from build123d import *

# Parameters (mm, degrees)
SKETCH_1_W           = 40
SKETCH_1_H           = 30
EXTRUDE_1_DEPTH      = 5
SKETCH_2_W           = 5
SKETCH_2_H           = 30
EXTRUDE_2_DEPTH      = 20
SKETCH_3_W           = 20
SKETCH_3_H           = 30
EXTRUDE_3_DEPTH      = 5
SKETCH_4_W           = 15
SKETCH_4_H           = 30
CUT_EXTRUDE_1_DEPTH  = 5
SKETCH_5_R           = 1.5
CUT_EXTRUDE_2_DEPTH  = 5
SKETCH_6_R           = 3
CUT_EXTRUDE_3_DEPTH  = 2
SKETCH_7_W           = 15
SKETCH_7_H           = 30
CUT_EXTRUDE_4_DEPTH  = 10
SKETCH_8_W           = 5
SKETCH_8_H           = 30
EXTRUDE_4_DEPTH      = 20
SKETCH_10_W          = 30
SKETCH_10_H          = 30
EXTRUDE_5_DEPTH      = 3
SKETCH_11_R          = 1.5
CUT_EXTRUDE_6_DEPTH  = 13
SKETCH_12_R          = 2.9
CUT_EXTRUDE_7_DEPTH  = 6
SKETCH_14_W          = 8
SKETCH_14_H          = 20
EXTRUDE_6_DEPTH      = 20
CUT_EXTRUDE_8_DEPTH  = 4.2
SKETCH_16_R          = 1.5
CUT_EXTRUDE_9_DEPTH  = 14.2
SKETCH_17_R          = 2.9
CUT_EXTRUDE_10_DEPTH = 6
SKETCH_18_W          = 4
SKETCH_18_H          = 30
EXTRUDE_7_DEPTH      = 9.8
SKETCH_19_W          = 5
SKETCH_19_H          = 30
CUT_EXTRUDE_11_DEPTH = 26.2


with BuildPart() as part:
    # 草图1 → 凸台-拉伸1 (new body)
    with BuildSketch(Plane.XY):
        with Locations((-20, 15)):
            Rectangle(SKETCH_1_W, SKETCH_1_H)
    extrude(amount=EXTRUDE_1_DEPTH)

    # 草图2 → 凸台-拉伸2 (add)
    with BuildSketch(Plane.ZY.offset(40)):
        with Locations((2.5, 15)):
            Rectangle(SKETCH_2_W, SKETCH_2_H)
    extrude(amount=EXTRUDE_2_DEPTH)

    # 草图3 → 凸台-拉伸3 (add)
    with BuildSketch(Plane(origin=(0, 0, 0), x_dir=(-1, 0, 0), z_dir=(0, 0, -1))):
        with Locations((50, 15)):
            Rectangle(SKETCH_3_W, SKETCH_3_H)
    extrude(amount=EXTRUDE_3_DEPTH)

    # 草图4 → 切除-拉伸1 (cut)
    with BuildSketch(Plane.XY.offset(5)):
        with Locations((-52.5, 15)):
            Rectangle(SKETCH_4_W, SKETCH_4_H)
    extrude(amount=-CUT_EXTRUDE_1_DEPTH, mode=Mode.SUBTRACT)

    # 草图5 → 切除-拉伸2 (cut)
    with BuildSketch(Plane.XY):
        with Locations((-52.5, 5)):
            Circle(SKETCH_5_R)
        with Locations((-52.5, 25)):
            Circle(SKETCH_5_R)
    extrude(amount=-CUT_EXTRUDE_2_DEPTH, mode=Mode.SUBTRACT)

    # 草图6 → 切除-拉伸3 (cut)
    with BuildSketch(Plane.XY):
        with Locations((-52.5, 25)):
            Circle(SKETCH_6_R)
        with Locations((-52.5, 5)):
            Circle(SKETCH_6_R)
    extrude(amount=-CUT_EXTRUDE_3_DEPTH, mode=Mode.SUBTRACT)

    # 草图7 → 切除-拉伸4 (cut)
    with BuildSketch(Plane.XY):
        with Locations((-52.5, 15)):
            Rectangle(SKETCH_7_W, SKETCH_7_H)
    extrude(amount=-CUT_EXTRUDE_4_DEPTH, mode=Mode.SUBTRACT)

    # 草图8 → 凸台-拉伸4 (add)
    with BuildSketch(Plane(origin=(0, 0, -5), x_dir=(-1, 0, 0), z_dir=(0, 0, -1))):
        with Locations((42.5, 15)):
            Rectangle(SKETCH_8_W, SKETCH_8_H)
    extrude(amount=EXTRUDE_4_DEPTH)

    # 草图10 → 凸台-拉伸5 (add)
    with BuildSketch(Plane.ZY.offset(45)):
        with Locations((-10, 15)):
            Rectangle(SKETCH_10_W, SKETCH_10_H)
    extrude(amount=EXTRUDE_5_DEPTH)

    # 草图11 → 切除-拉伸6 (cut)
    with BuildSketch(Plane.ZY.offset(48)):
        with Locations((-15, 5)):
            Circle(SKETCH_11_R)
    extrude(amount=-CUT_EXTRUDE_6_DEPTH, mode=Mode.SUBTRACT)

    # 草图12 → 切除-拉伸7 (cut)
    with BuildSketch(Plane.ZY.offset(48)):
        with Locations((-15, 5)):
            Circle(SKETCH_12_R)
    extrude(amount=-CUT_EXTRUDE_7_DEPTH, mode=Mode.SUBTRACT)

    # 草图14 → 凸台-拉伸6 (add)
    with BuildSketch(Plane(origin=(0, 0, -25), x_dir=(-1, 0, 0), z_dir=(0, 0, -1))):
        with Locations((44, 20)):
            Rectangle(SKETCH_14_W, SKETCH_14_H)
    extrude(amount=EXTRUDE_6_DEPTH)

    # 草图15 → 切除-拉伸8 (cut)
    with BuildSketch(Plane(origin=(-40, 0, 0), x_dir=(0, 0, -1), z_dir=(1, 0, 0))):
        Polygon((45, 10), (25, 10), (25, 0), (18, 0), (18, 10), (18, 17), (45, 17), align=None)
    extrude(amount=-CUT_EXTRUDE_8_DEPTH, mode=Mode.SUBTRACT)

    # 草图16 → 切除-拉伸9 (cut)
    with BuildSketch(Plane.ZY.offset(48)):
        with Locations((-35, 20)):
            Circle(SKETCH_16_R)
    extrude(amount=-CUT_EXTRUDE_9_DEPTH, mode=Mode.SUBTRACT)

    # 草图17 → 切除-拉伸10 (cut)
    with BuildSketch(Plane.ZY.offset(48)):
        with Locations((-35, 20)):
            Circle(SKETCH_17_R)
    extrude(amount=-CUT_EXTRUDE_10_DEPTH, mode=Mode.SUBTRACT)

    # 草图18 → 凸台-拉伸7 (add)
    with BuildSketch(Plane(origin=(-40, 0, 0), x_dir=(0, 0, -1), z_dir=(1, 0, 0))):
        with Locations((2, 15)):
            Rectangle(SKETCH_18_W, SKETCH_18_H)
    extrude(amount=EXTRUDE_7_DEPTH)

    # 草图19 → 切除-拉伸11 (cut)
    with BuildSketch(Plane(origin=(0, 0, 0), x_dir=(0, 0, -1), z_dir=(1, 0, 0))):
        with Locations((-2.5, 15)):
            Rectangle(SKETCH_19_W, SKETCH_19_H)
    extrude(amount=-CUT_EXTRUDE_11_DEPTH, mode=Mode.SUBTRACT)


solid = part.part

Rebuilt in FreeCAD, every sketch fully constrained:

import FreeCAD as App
import Part
import Sketcher

V = App.Vector
Q = App.Units.Quantity

doc = App.newDocument("Part")
body = doc.addObject("PartDesign::Body", "Body")

# Sketch on XY plane
sketch1 = doc.addObject("Sketcher::SketchObject", "Sketch")
body.addObject(sketch1)
sketch1.AttachmentSupport = (doc.XY_Plane, [""])
sketch1.MapMode = "FlatFace"
sketch1.addGeometry([
    Part.LineSegment(V(-40, 30, 0), V(-40, 0, 0)),
    Part.LineSegment(V(-40, 0, 0), V(0, 0, 0)),
    Part.LineSegment(V(0, 0, 0), V(0, 30, 0)),
    Part.LineSegment(V(0, 30, 0), V(-40, 30, 0)),
], False)
sketch1.addConstraint([
    Sketcher.Constraint("Coincident", 0, 2, 1, 1),
    Sketcher.Constraint("Coincident", 1, 2, 2, 1),
    Sketcher.Constraint("Coincident", 2, 2, 3, 1),
    Sketcher.Constraint("Coincident", 3, 2, 0, 1),
    Sketcher.Constraint("Vertical", 0),
    Sketcher.Constraint("Horizontal", 1),
    Sketcher.Constraint("Vertical", 2),
    Sketcher.Constraint("Horizontal", 3),
    Sketcher.Constraint("Coincident", 1, 2, -1, 1),
    Sketcher.Constraint("DistanceX", 1, 1, 1, 2, Q("40 mm")),
    Sketcher.Constraint("DistanceY", 0, 2, 0, 1, Q("30 mm")),
])
pad1 = doc.addObject("PartDesign::Pad", "Pad")
body.addObject(pad1)
pad1.Profile = sketch1
pad1.Length = 5

# Sketch on YZ plane
sketch2 = doc.addObject("Sketcher::SketchObject", "Sketch001")
body.addObject(sketch2)
sketch2.AttachmentSupport = (doc.YZ_Plane, [""])
sketch2.MapMode = "FlatFace"
sketch2.AttachmentOffset = App.Placement(V(0, 0, -40), App.Rotation())
sketch2.addGeometry([
    Part.LineSegment(V(30, 0, 0), V(0, 0, 0)),
    Part.LineSegment(V(0, 0, 0), V(0, 5, 0)),
    Part.LineSegment(V(0, 5, 0), V(30, 5, 0)),
    Part.LineSegment(V(30, 5, 0), V(30, 0, 0)),
], False)
sketch2.addConstraint([
    Sketcher.Constraint("Coincident", 0, 2, 1, 1),
    Sketcher.Constraint("Coincident", 1, 2, 2, 1),
    Sketcher.Constraint("Coincident", 2, 2, 3, 1),
    Sketcher.Constraint("Coincident", 3, 2, 0, 1),
    Sketcher.Constraint("Horizontal", 0),
    Sketcher.Constraint("Vertical", 1),
    Sketcher.Constraint("Horizontal", 2),
    Sketcher.Constraint("Vertical", 3),
    Sketcher.Constraint("Coincident", 0, 2, -1, 1),
    Sketcher.Constraint("DistanceX", 0, 2, 0, 1, Q("30 mm")),
    Sketcher.Constraint("DistanceY", 1, 1, 1, 2, Q("5 mm")),
])
pad2 = doc.addObject("PartDesign::Pad", "Pad001")
body.addObject(pad2)
pad2.Profile = sketch2
pad2.Length = 20
pad2.Reversed = True

# Sketch on XY plane
sketch3 = doc.addObject("Sketcher::SketchObject", "Sketch002")
body.addObject(sketch3)
sketch3.AttachmentSupport = (doc.XY_Plane, [""])
sketch3.MapMode = "FlatFace"
sketch3.addGeometry([
    Part.LineSegment(V(-40, 30, 0), V(-40, 0, 0)),
    Part.LineSegment(V(-40, 0, 0), V(-60, 0, 0)),
    Part.LineSegment(V(-60, 0, 0), V(-60, 30, 0)),
    Part.LineSegment(V(-60, 30, 0), V(-40, 30, 0)),
], False)
sketch3.addConstraint([
    Sketcher.Constraint("Coincident", 0, 2, 1, 1),
    Sketcher.Constraint("Coincident", 1, 2, 2, 1),
    Sketcher.Constraint("Coincident", 2, 2, 3, 1),
    Sketcher.Constraint("Coincident", 3, 2, 0, 1),
    Sketcher.Constraint("Vertical", 0),
    Sketcher.Constraint("Horizontal", 1),
    Sketcher.Constraint("Vertical", 2),
    Sketcher.Constraint("Horizontal", 3),
    Sketcher.Constraint("PointOnObject", 0, 2, -1),
    Sketcher.Constraint("DistanceX", 1, 2, 1, 1, Q("20 mm")),
    Sketcher.Constraint("DistanceY", 0, 2, 0, 1, Q("30 mm")),
    Sketcher.Constraint("DistanceX", 0, 2, -1, 1, Q("40 mm")),
])
pad3 = doc.addObject("PartDesign::Pad", "Pad002")
body.addObject(pad3)
pad3.Profile = sketch3
pad3.Length = 5
pad3.Reversed = True

# Sketch on XY plane
sketch4 = doc.addObject("Sketcher::SketchObject", "Sketch003")
body.addObject(sketch4)
sketch4.AttachmentSupport = (doc.XY_Plane, [""])
sketch4.MapMode = "FlatFace"
sketch4.AttachmentOffset = App.Placement(V(0, 0, 5), App.Rotation())
sketch4.addGeometry([
    Part.LineSegment(V(-60, 30, 0), V(-60, 0, 0)),
    Part.LineSegment(V(-60, 0, 0), V(-45, 0, 0)),
    Part.LineSegment(V(-45, 0, 0), V(-45, 30, 0)),
    Part.LineSegment(V(-45, 30, 0), V(-60, 30, 0)),
], False)
sketch4.addConstraint([
    Sketcher.Constraint("Coincident", 0, 2, 1, 1),
    Sketcher.Constraint("Coincident", 1, 2, 2, 1),
    Sketcher.Constraint("Coincident", 2, 2, 3, 1),
    Sketcher.Constraint("Coincident", 3, 2, 0, 1),
    Sketcher.Constraint("Vertical", 0),
    Sketcher.Constraint("Horizontal", 1),
    Sketcher.Constraint("Vertical", 2),
    Sketcher.Constraint("Horizontal", 3),
    Sketcher.Constraint("PointOnObject", 0, 2, -1),
    Sketcher.Constraint("DistanceX", 1, 1, 1, 2, Q("15 mm")),
    Sketcher.Constraint("DistanceY", 0, 2, 0, 1, Q("30 mm")),
    Sketcher.Constraint("DistanceX", 0, 2, -1, 1, Q("60 mm")),
])
pocket1 = doc.addObject("PartDesign::Pocket", "Pocket")
body.addObject(pocket1)
pocket1.Profile = sketch4
pocket1.Length = 5

# Sketch on XY plane
sketch5 = doc.addObject("Sketcher::SketchObject", "Sketch004")
body.addObject(sketch5)
sketch5.AttachmentSupport = (doc.XY_Plane, [""])
sketch5.MapMode = "FlatFace"
sketch5.addGeometry([
    Part.Circle(V(-52.5, 5, 0), V(0, 0, 1), 1.5),
    Part.Circle(V(-52.5, 25, 0), V(0, 0, 1), 1.5),
], False)
sketch5.addConstraint([
    Sketcher.Constraint("Equal", 0, 1),
    Sketcher.Constraint("Vertical", 0, 3, 1, 3),
    Sketcher.Constraint("Diameter", 0, Q("3 mm")),
    Sketcher.Constraint("DistanceY", -1, 1, 0, 3, Q("5 mm")),
    Sketcher.Constraint("DistanceY", -1, 1, 1, 3, Q("25 mm")),
    Sketcher.Constraint("DistanceX", 0, 3, -1, 1, Q("52.5 mm")),
])
pocket2 = doc.addObject("PartDesign::Pocket", "Pocket001")
body.addObject(pocket2)
pocket2.Profile = sketch5
pocket2.Length = 5

# Sketch on XY plane
sketch6 = doc.addObject("Sketcher::SketchObject", "Sketch005")
body.addObject(sketch6)
sketch6.AttachmentSupport = (doc.XY_Plane, [""])
sketch6.MapMode = "FlatFace"
sketch6.addGeometry([
    Part.Circle(V(-52.5, 25, 0), V(0, 0, 1), 3),
    Part.Circle(V(-52.5, 5, 0), V(0, 0, 1), 3),
], False)
sketch6.addConstraint([
    Sketcher.Constraint("Equal", 0, 1),
    Sketcher.Constraint("Vertical", 0, 3, 1, 3),
    Sketcher.Constraint("Diameter", 0, Q("6 mm")),
    Sketcher.Constraint("DistanceY", -1, 1, 0, 3, Q("25 mm")),
    Sketcher.Constraint("DistanceY", -1, 1, 1, 3, Q("5 mm")),
    Sketcher.Constraint("DistanceX", 0, 3, -1, 1, Q("52.5 mm")),
])
pocket3 = doc.addObject("PartDesign::Pocket", "Pocket002")
body.addObject(pocket3)
pocket3.Profile = sketch6
pocket3.Length = 2

# Sketch on XY plane
sketch7 = doc.addObject("Sketcher::SketchObject", "Sketch006")
body.addObject(sketch7)
sketch7.AttachmentSupport = (doc.XY_Plane, [""])
sketch7.MapMode = "FlatFace"
sketch7.addGeometry([
    Part.LineSegment(V(-60, 30, 0), V(-60, 0, 0)),
    Part.LineSegment(V(-60, 0, 0), V(-45, 0, 0)),
    Part.LineSegment(V(-45, 0, 0), V(-45, 30, 0)),
    Part.LineSegment(V(-45, 30, 0), V(-60, 30, 0)),
], False)
sketch7.addConstraint([
    Sketcher.Constraint("Coincident", 0, 2, 1, 1),
    Sketcher.Constraint("Coincident", 1, 2, 2, 1),
    Sketcher.Constraint("Coincident", 2, 2, 3, 1),
    Sketcher.Constraint("Coincident", 3, 2, 0, 1),
    Sketcher.Constraint("Vertical", 0),
    Sketcher.Constraint("Horizontal", 1),
    Sketcher.Constraint("Vertical", 2),
    Sketcher.Constraint("Horizontal", 3),
    Sketcher.Constraint("PointOnObject", 0, 2, -1),
    Sketcher.Constraint("DistanceX", 1, 1, 1, 2, Q("15 mm")),
    Sketcher.Constraint("DistanceY", 0, 2, 0, 1, Q("30 mm")),
    Sketcher.Constraint("DistanceX", 0, 2, -1, 1, Q("60 mm")),
])
pocket4 = doc.addObject("PartDesign::Pocket", "Pocket003")
body.addObject(pocket4)
pocket4.Profile = sketch7
pocket4.Length = 10

# Sketch on XY plane
sketch8 = doc.addObject("Sketcher::SketchObject", "Sketch007")
body.addObject(sketch8)
sketch8.AttachmentSupport = (doc.XY_Plane, [""])
sketch8.MapMode = "FlatFace"
sketch8.AttachmentOffset = App.Placement(V(0, 0, -5), App.Rotation())
sketch8.addGeometry([
    Part.LineSegment(V(-40, 30, 0), V(-40, 0, 0)),
    Part.LineSegment(V(-40, 0, 0), V(-45, 0, 0)),
    Part.LineSegment(V(-45, 0, 0), V(-45, 30, 0)),
    Part.LineSegment(V(-45, 30, 0), V(-40, 30, 0)),
], False)
sketch8.addConstraint([
    Sketcher.Constraint("Coincident", 0, 2, 1, 1),
    Sketcher.Constraint("Coincident", 1, 2, 2, 1),
    Sketcher.Constraint("Coincident", 2, 2, 3, 1),
    Sketcher.Constraint("Coincident", 3, 2, 0, 1),
    Sketcher.Constraint("Vertical", 0),
    Sketcher.Constraint("Horizontal", 1),
    Sketcher.Constraint("Vertical", 2),
    Sketcher.Constraint("Horizontal", 3),
    Sketcher.Constraint("PointOnObject", 0, 2, -1),
    Sketcher.Constraint("DistanceX", 1, 2, 1, 1, Q("5 mm")),
    Sketcher.Constraint("DistanceY", 0, 2, 0, 1, Q("30 mm")),
    Sketcher.Constraint("DistanceX", 0, 2, -1, 1, Q("40 mm")),
])
pad4 = doc.addObject("PartDesign::Pad", "Pad003")
body.addObject(pad4)
pad4.Profile = sketch8
pad4.Length = 20
pad4.Reversed = True

# Sketch on YZ plane
sketch9 = doc.addObject("Sketcher::SketchObject", "Sketch008")
body.addObject(sketch9)
sketch9.AttachmentSupport = (doc.YZ_Plane, [""])
sketch9.MapMode = "FlatFace"
sketch9.AttachmentOffset = App.Placement(V(0, 0, -45), App.Rotation())
sketch9.addGeometry([
    Part.LineSegment(V(30, -25, 0), V(0, -25, 0)),
    Part.LineSegment(V(0, -25, 0), V(0, 5, 0)),
    Part.LineSegment(V(0, 5, 0), V(30, 5, 0)),
    Part.LineSegment(V(30, 5, 0), V(30, -25, 0)),
], False)
sketch9.addConstraint([
    Sketcher.Constraint("Coincident", 0, 2, 1, 1),
    Sketcher.Constraint("Coincident", 1, 2, 2, 1),
    Sketcher.Constraint("Coincident", 2, 2, 3, 1),
    Sketcher.Constraint("Coincident", 3, 2, 0, 1),
    Sketcher.Constraint("Horizontal", 0),
    Sketcher.Constraint("Vertical", 1),
    Sketcher.Constraint("Horizontal", 2),
    Sketcher.Constraint("Vertical", 3),
    Sketcher.Constraint("PointOnObject", 0, 2, -2),
    Sketcher.Constraint("Equal", 2, 1),
    Sketcher.Constraint("DistanceX", 0, 2, 0, 1, Q("30 mm")),
    Sketcher.Constraint("DistanceY", 0, 2, -1, 1, Q("25 mm")),
])
pad5 = doc.addObject("PartDesign::Pad", "Pad004")
body.addObject(pad5)
pad5.Profile = sketch9
pad5.Length = 3
pad5.Reversed = True

# Sketch on YZ plane
sketch10 = doc.addObject("Sketcher::SketchObject", "Sketch009")
body.addObject(sketch10)
sketch10.AttachmentSupport = (doc.YZ_Plane, [""])
sketch10.MapMode = "FlatFace"
sketch10.AttachmentOffset = App.Placement(V(0, 0, -48), App.Rotation())
sketch10.addGeometry(Part.Circle(V(5, -15, 0), V(0, 0, 1), 1.5), False)
sketch10.addConstraint([
    Sketcher.Constraint("Diameter", 0, Q("3 mm")),
    Sketcher.Constraint("DistanceX", -1, 1, 0, 3, Q("5 mm")),
    Sketcher.Constraint("DistanceY", 0, 3, -1, 1, Q("15 mm")),
])
pocket5 = doc.addObject("PartDesign::Pocket", "Pocket004")
body.addObject(pocket5)
pocket5.Profile = sketch10
pocket5.Length = 13
pocket5.Reversed = True

# Sketch on YZ plane
sketch11 = doc.addObject("Sketcher::SketchObject", "Sketch010")
body.addObject(sketch11)
sketch11.AttachmentSupport = (doc.YZ_Plane, [""])
sketch11.MapMode = "FlatFace"
sketch11.AttachmentOffset = App.Placement(V(0, 0, -48), App.Rotation())
sketch11.addGeometry(Part.Circle(V(5, -15, 0), V(0, 0, 1), 2.9), False)
sketch11.addConstraint([
    Sketcher.Constraint("Diameter", 0, Q("5.8 mm")),
    Sketcher.Constraint("DistanceX", -1, 1, 0, 3, Q("5 mm")),
    Sketcher.Constraint("DistanceY", 0, 3, -1, 1, Q("15 mm")),
])
pocket6 = doc.addObject("PartDesign::Pocket", "Pocket005")
body.addObject(pocket6)
pocket6.Profile = sketch11
pocket6.Length = 6
pocket6.Reversed = True

# Sketch on XY plane
sketch12 = doc.addObject("Sketcher::SketchObject", "Sketch011")
body.addObject(sketch12)
sketch12.AttachmentSupport = (doc.XY_Plane, [""])
sketch12.MapMode = "FlatFace"
sketch12.AttachmentOffset = App.Placement(V(0, 0, -25), App.Rotation())
sketch12.addGeometry([
    Part.LineSegment(V(-40, 30, 0), V(-40, 10, 0)),
    Part.LineSegment(V(-40, 10, 0), V(-48, 10, 0)),
    Part.LineSegment(V(-48, 10, 0), V(-48, 30, 0)),
    Part.LineSegment(V(-48, 30, 0), V(-40, 30, 0)),
], False)
sketch12.addConstraint([
    Sketcher.Constraint("Coincident", 0, 2, 1, 1),
    Sketcher.Constraint("Coincident", 1, 2, 2, 1),
    Sketcher.Constraint("Coincident", 2, 2, 3, 1),
    Sketcher.Constraint("Coincident", 3, 2, 0, 1),
    Sketcher.Constraint("Vertical", 0),
    Sketcher.Constraint("Horizontal", 1),
    Sketcher.Constraint("Vertical", 2),
    Sketcher.Constraint("Horizontal", 3),
    Sketcher.Constraint("DistanceX", 1, 2, 1, 1, Q("8 mm")),
    Sketcher.Constraint("DistanceY", 0, 2, 0, 1, Q("20 mm")),
    Sketcher.Constraint("DistanceX", 0, 2, -1, 1, Q("40 mm")),
    Sketcher.Constraint("DistanceY", -1, 1, 0, 2, Q("10 mm")),
])
pad6 = doc.addObject("PartDesign::Pad", "Pad005")
body.addObject(pad6)
pad6.Profile = sketch12
pad6.Length = 20
pad6.Reversed = True

# Sketch on YZ plane
sketch13 = doc.addObject("Sketcher::SketchObject", "Sketch012")
body.addObject(sketch13)
sketch13.AttachmentSupport = (doc.YZ_Plane, [""])
sketch13.MapMode = "FlatFace"
sketch13.AttachmentOffset = App.Placement(V(0, 0, -40), App.Rotation())
sketch13.addGeometry([
    Part.LineSegment(V(10, -25, 0), V(10, -45, 0)),  # 0
    Part.LineSegment(V(10, -45, 0), V(17, -45, 0)),  # 1
    Part.LineSegment(V(17, -45, 0), V(17, -18, 0)),  # 2
    Part.LineSegment(V(17, -18, 0), V(0, -18, 0)),  # 3
    Part.LineSegment(V(0, -18, 0), V(0, -25, 0)),  # 4
    Part.LineSegment(V(0, -25, 0), V(10, -25, 0)),  # 5
], False)
sketch13.addConstraint([
    Sketcher.Constraint("Coincident", 0, 2, 1, 1),
    Sketcher.Constraint("Coincident", 1, 2, 2, 1),
    Sketcher.Constraint("Coincident", 2, 2, 3, 1),
    Sketcher.Constraint("Coincident", 3, 2, 4, 1),
    Sketcher.Constraint("Coincident", 4, 2, 5, 1),
    Sketcher.Constraint("Coincident", 5, 2, 0, 1),
    Sketcher.Constraint("Vertical", 0),
    Sketcher.Constraint("Horizontal", 1),
    Sketcher.Constraint("Vertical", 2),
    Sketcher.Constraint("Horizontal", 3),
    Sketcher.Constraint("Vertical", 4),
    Sketcher.Constraint("Horizontal", 5),
    Sketcher.Constraint("PointOnObject", 3, 2, -2),
    Sketcher.Constraint("Equal", 1, 4),
    Sketcher.Constraint("DistanceX", 1, 1, 1, 2, Q("7 mm")),
    Sketcher.Constraint("DistanceX", 3, 2, 3, 1, Q("17 mm")),
    Sketcher.Constraint("DistanceY", 0, 2, 0, 1, Q("20 mm")),
    Sketcher.Constraint("DistanceY", 0, 2, -1, 1, Q("45 mm")),
])
pocket7 = doc.addObject("PartDesign::Pocket", "Pocket006")
body.addObject(pocket7)
pocket7.Profile = sketch13
pocket7.Length = 4.2

# Sketch on YZ plane
sketch14 = doc.addObject("Sketcher::SketchObject", "Sketch013")
body.addObject(sketch14)
sketch14.AttachmentSupport = (doc.YZ_Plane, [""])
sketch14.MapMode = "FlatFace"
sketch14.AttachmentOffset = App.Placement(V(0, 0, -48), App.Rotation())
sketch14.addGeometry(Part.Circle(V(20, -35, 0), V(0, 0, 1), 1.5), False)
sketch14.addConstraint([
    Sketcher.Constraint("Diameter", 0, Q("3 mm")),
    Sketcher.Constraint("DistanceX", -1, 1, 0, 3, Q("20 mm")),
    Sketcher.Constraint("DistanceY", 0, 3, -1, 1, Q("35 mm")),
])
pocket8 = doc.addObject("PartDesign::Pocket", "Pocket007")
body.addObject(pocket8)
pocket8.Profile = sketch14
pocket8.Length = 14.2
pocket8.Reversed = True

# Sketch on YZ plane
sketch15 = doc.addObject("Sketcher::SketchObject", "Sketch014")
body.addObject(sketch15)
sketch15.AttachmentSupport = (doc.YZ_Plane, [""])
sketch15.MapMode = "FlatFace"
sketch15.AttachmentOffset = App.Placement(V(0, 0, -48), App.Rotation())
sketch15.addGeometry(Part.Circle(V(20, -35, 0), V(0, 0, 1), 2.9), False)
sketch15.addConstraint([
    Sketcher.Constraint("Diameter", 0, Q("5.8 mm")),
    Sketcher.Constraint("DistanceX", -1, 1, 0, 3, Q("20 mm")),
    Sketcher.Constraint("DistanceY", 0, 3, -1, 1, Q("35 mm")),
])
pocket9 = doc.addObject("PartDesign::Pocket", "Pocket008")
body.addObject(pocket9)
pocket9.Profile = sketch15
pocket9.Length = 6
pocket9.Reversed = True

# Sketch on YZ plane
sketch16 = doc.addObject("Sketcher::SketchObject", "Sketch015")
body.addObject(sketch16)
sketch16.AttachmentSupport = (doc.YZ_Plane, [""])
sketch16.MapMode = "FlatFace"
sketch16.AttachmentOffset = App.Placement(V(0, 0, -40), App.Rotation())
sketch16.addGeometry([
    Part.LineSegment(V(30, 0, 0), V(0, 0, 0)),
    Part.LineSegment(V(0, 0, 0), V(0, -4, 0)),
    Part.LineSegment(V(0, -4, 0), V(30, -4, 0)),
    Part.LineSegment(V(30, -4, 0), V(30, 0, 0)),
], False)
sketch16.addConstraint([
    Sketcher.Constraint("Coincident", 0, 2, 1, 1),
    Sketcher.Constraint("Coincident", 1, 2, 2, 1),
    Sketcher.Constraint("Coincident", 2, 2, 3, 1),
    Sketcher.Constraint("Coincident", 3, 2, 0, 1),
    Sketcher.Constraint("Horizontal", 0),
    Sketcher.Constraint("Vertical", 1),
    Sketcher.Constraint("Horizontal", 2),
    Sketcher.Constraint("Vertical", 3),
    Sketcher.Constraint("Coincident", 0, 2, -1, 1),
    Sketcher.Constraint("DistanceX", 0, 2, 0, 1, Q("30 mm")),
    Sketcher.Constraint("DistanceY", 1, 2, 1, 1, Q("4 mm")),
])
pad7 = doc.addObject("PartDesign::Pad", "Pad006")
body.addObject(pad7)
pad7.Profile = sketch16
pad7.Length = 9.8

# Sketch on YZ plane
sketch17 = doc.addObject("Sketcher::SketchObject", "Sketch016")
body.addObject(sketch17)
sketch17.AttachmentSupport = (doc.YZ_Plane, [""])
sketch17.MapMode = "FlatFace"
sketch17.addGeometry([
    Part.LineSegment(V(30, 5, 0), V(0, 5, 0)),
    Part.LineSegment(V(0, 5, 0), V(0, 0, 0)),
    Part.LineSegment(V(0, 0, 0), V(30, 0, 0)),
    Part.LineSegment(V(30, 0, 0), V(30, 5, 0)),
], False)
sketch17.addConstraint([
    Sketcher.Constraint("Coincident", 0, 2, 1, 1),
    Sketcher.Constraint("Coincident", 1, 2, 2, 1),
    Sketcher.Constraint("Coincident", 2, 2, 3, 1),
    Sketcher.Constraint("Coincident", 3, 2, 0, 1),
    Sketcher.Constraint("Horizontal", 0),
    Sketcher.Constraint("Vertical", 1),
    Sketcher.Constraint("Horizontal", 2),
    Sketcher.Constraint("Vertical", 3),
    Sketcher.Constraint("Coincident", 1, 2, -1, 1),
    Sketcher.Constraint("DistanceX", 0, 2, 0, 1, Q("30 mm")),
    Sketcher.Constraint("DistanceY", 1, 2, 1, 1, Q("5 mm")),
])
pocket10 = doc.addObject("PartDesign::Pocket", "Pocket009")
body.addObject(pocket10)
pocket10.Profile = sketch17
pocket10.Length = 26.2

doc.recompute()
